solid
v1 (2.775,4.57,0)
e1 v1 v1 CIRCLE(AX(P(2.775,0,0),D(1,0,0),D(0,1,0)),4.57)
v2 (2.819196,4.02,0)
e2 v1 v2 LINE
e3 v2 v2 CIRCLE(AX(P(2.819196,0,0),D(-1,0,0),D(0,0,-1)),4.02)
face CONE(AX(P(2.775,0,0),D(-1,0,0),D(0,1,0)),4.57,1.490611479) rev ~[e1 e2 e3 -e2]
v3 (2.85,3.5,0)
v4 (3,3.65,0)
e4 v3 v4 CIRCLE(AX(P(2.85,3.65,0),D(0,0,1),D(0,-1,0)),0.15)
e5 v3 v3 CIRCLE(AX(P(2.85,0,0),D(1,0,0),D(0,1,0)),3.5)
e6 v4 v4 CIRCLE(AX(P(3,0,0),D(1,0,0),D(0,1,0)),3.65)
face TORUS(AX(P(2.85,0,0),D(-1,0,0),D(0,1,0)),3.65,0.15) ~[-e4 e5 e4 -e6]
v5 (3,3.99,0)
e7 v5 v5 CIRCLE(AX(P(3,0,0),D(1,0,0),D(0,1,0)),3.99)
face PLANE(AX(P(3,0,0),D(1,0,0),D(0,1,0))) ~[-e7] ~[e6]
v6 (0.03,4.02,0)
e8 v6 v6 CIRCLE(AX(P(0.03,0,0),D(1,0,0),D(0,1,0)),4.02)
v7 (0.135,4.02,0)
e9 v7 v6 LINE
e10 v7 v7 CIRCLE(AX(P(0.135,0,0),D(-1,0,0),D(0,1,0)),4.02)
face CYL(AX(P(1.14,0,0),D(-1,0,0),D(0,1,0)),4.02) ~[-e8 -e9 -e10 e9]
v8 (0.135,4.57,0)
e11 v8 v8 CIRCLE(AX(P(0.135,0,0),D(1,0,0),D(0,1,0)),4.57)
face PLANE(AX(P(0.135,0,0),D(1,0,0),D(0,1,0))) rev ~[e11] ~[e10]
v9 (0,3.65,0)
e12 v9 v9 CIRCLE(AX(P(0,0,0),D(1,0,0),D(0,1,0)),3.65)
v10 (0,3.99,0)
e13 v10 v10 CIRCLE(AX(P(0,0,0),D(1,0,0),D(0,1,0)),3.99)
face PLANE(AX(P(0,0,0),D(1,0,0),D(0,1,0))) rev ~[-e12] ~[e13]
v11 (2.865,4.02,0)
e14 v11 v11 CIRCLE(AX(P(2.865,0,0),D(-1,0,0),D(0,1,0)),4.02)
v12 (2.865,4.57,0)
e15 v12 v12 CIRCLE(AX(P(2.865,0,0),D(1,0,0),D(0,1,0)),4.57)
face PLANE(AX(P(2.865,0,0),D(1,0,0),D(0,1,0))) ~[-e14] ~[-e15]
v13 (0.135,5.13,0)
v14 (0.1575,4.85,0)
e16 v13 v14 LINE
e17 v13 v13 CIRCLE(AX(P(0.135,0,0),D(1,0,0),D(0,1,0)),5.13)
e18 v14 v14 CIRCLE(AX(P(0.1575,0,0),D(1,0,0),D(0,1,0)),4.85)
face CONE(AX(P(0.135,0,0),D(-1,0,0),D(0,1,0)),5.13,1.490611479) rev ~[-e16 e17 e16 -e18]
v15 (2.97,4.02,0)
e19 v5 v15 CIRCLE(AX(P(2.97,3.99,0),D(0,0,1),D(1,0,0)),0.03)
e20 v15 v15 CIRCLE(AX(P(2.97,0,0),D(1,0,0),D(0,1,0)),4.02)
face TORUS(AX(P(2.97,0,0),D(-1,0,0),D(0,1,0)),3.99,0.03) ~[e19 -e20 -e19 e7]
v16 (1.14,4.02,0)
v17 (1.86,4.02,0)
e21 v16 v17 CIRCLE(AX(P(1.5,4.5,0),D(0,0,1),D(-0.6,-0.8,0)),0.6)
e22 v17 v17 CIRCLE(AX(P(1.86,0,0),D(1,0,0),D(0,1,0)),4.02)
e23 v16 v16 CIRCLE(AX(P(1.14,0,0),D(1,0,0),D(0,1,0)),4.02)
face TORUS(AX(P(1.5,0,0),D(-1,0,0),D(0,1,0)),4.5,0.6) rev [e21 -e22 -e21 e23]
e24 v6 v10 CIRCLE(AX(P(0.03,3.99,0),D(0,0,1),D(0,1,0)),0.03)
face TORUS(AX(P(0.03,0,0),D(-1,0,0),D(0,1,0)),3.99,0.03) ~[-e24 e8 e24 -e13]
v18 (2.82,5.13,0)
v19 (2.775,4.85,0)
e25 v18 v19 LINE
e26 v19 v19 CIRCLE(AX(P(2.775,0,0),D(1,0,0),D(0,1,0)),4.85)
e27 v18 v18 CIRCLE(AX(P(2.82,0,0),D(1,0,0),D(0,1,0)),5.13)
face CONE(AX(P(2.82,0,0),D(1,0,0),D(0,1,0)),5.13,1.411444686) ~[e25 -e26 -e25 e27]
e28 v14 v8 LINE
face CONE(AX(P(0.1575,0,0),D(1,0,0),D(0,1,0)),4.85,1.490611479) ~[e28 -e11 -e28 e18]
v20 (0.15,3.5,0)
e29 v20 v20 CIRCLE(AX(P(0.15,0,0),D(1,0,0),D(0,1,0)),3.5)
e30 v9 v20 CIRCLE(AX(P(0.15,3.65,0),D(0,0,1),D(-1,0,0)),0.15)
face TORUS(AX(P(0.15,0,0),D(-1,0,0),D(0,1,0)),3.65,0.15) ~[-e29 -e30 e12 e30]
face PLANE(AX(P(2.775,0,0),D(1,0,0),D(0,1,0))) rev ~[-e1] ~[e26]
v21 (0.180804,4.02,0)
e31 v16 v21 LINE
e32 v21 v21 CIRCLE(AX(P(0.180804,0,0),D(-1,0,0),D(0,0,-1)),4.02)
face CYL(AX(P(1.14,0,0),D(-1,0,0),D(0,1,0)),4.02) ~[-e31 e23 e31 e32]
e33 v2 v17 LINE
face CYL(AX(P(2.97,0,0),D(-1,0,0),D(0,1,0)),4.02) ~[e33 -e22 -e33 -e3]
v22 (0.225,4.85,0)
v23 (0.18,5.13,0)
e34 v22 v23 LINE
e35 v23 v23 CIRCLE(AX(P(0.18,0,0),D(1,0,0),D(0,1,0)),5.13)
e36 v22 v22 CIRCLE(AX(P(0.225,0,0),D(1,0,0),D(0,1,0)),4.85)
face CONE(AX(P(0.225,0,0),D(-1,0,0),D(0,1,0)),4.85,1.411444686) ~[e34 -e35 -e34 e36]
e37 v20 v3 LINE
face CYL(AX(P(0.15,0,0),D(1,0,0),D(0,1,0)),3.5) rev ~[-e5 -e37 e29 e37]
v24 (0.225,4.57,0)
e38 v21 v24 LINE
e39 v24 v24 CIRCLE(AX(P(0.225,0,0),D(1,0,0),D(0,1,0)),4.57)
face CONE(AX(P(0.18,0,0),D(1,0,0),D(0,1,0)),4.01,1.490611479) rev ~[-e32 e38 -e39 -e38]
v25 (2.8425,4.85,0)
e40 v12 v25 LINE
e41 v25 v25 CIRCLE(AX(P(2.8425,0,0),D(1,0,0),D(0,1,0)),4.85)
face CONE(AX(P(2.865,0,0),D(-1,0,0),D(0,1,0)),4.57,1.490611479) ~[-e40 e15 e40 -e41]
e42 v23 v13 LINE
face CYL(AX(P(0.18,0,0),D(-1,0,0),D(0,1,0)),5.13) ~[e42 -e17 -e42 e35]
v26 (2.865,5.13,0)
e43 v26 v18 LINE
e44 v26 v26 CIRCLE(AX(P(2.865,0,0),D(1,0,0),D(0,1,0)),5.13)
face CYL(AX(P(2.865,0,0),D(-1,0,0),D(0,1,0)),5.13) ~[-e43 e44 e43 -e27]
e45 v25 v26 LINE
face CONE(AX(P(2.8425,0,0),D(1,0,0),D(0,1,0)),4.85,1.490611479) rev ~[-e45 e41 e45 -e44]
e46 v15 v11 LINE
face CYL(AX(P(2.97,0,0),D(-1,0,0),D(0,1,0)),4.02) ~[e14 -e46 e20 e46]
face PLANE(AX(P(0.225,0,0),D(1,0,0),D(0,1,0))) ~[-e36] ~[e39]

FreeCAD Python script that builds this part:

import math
import FreeCAD as App
import Part
import Sketcher

V = App.Vector
Q = App.Units.Quantity

doc = App.newDocument("Part")
params = doc.addObject("Spreadsheet::Sheet", "Params")
for row, (alias, value) in enumerate([
    ("sketch1_radius", "0.6 mm"),
    ("sketch1_radius2", "0.03 mm"),
    ("sketch1_radius3", "0.15 mm"),
    ("sketch1_width", "2.7 mm"),
    ("sketch1_width2", "1.11 mm"),
    ("revolution_angle", "360 deg"),
    ("sketch2_height", "0.56 mm"),
    ("sketch2_height2", "0.28 mm"),
    ("revolution2_angle", "360 deg"),
    ("sketch3_height", "0.28 mm"),
    ("sketch3_height2", "0.56 mm"),
    ("revolution3_angle", "360 deg"),
], start=1):
    params.set(f"A{row}", alias)
    params.set(f"B{row}", "=" + value)
    params.setAlias(f"B{row}", alias)

body = doc.addObject("PartDesign::Body", "Body")

sketch1 = body.newObject("Sketcher::SketchObject", "Sketch")
sketch1.AttachmentSupport = (doc.getObject("XY_Plane"), [""])
sketch1.MapMode = "FlatFace"
sketch1.addGeometry(Part.ArcOfCircle(Part.Circle(V(0.03, 3.99, 0), V(0, 0, 1), 0.03), math.radians(90), math.radians(180)), False)
sketch1.addGeometry(Part.LineSegment(V(0, 3.99, 0), V(0, 3.65, 0)), False)
sketch1.addGeometry(Part.ArcOfCircle(Part.Circle(V(0.15, 3.65, 0), V(0, 0, 1), 0.15), math.radians(180), math.radians(270)), False)
sketch1.addGeometry(Part.LineSegment(V(0.15, 3.5, 0), V(2.85, 3.5, 0)), False)
sketch1.addGeometry(Part.ArcOfCircle(Part.Circle(V(2.85, 3.65, 0), V(0, 0, 1), 0.15), math.radians(-90), math.radians(0)), False)
sketch1.addGeometry(Part.LineSegment(V(3, 3.65, 0), V(3, 3.99, 0)), False)
sketch1.addGeometry(Part.ArcOfCircle(Part.Circle(V(2.97, 3.99, 0), V(0, 0, 1), 0.03), math.radians(0), math.radians(90)), False)
sketch1.addGeometry(Part.LineSegment(V(2.97, 4.02, 0), V(1.86, 4.02, 0)), False)
sketch1.addGeometry(Part.ArcOfCircle(Part.Circle(V(1.5, 4.5, 0), V(0, 0, 1), 0.6), math.radians(-127), math.radians(-53)), False)
sketch1.addGeometry(Part.LineSegment(V(1.14, 4.02, 0), V(0.03, 4.02, 0)), False)
sketch1.addConstraint(Sketcher.Constraint("Tangent", 0, 2, 1, 1))
sketch1.addConstraint(Sketcher.Constraint("Tangent", 1, 2, 2, 1))
sketch1.addConstraint(Sketcher.Constraint("Tangent", 2, 2, 3, 1))
sketch1.addConstraint(Sketcher.Constraint("Tangent", 3, 2, 4, 1))
sketch1.addConstraint(Sketcher.Constraint("Tangent", 4, 2, 5, 1))
sketch1.addConstraint(Sketcher.Constraint("Tangent", 5, 2, 6, 1))
sketch1.addConstraint(Sketcher.Constraint("Tangent", 6, 2, 7, 1))
sketch1.addConstraint(Sketcher.Constraint("Coincident", 7, 2, 8, 2))
sketch1.addConstraint(Sketcher.Constraint("Coincident", 8, 1, 9, 1))
sketch1.addConstraint(Sketcher.Constraint("Tangent", 9, 2, 0, 1))
sketch1.addConstraint(Sketcher.Constraint("Vertical", 1))
sketch1.addConstraint(Sketcher.Constraint("Horizontal", 3))
sketch1.addConstraint(Sketcher.Constraint("Vertical", 5))
sketch1.addConstraint(Sketcher.Constraint("Horizontal", 7))
sketch1.addConstraint(Sketcher.Constraint("Horizontal", 9))
sketch1.addConstraint(Sketcher.Constraint("Equal", 2, 4))
sketch1.addConstraint(Sketcher.Constraint("Equal", 0, 6))
sketch1.addConstraint(Sketcher.Constraint("PointOnObject", 0, 2, -2))
sketch1.addConstraint(Sketcher.Constraint("Horizontal", 0, 3, 6, 3))
sketch1.addConstraint(Sketcher.Constraint("Equal", 7, 9))
sketch1.addConstraint(Sketcher.Constraint("Radius", 8, Q("0.6 mm")))
sketch1.addConstraint(Sketcher.Constraint("Radius", 0, Q("0.03 mm")))
sketch1.addConstraint(Sketcher.Constraint("Radius", 2, Q("0.15 mm")))
sketch1.addConstraint(Sketcher.Constraint("DistanceX", 3, 1, 3, 2, Q("2.7 mm")))
sketch1.addConstraint(Sketcher.Constraint("DistanceY", 2, 2, 8, 3, Q("1 mm")))
sketch1.addConstraint(Sketcher.Constraint("DistanceX", 7, 2, 7, 1, Q("1.11 mm")))
sketch1.addConstraint(Sketcher.Constraint("DistanceY", -1, 1, 8, 3, Q("4.5 mm")))
sketch1.setExpression("Constraints[20]", "Params.sketch1_radius")
sketch1.setExpression("Constraints[21]", "Params.sketch1_radius2")
sketch1.setExpression("Constraints[22]", "Params.sketch1_radius3")
sketch1.setExpression("Constraints[23]", "Params.sketch1_width")
sketch1.setExpression("Constraints[25]", "Params.sketch1_width2")
revolution = body.newObject("PartDesign::Revolution", "Revolution")
revolution.Profile = sketch1
revolution.ReferenceAxis = (sketch1, ["H_Axis"])
revolution.setExpression("Angle", "Params.revolution_angle")

sketch2 = body.newObject("Sketcher::SketchObject", "Sketch001")
sketch2.AttachmentSupport = (doc.getObject("XY_Plane"), [""])
sketch2.MapMode = "FlatFace"
sketch2.addGeometry(Part.LineSegment(V(0.18, 5.13, 0), V(0.135, 5.13, 0)), False)
sketch2.addGeometry(Part.LineSegment(V(0.135, 5.13, 0), V(0.158, 4.85, 0)), False)
sketch2.addGeometry(Part.LineSegment(V(0.158, 4.85, 0), V(0.135, 4.57, 0)), False)
sketch2.addGeometry(Part.LineSegment(V(0.135, 4.57, 0), V(0.135, 4.01, 0)), False)
sketch2.addGeometry(Part.LineSegment(V(0.135, 4.01, 0), V(0.18, 4.01, 0)), False)
sketch2.addGeometry(Part.LineSegment(V(0.18, 4.01, 0), V(0.225, 4.57, 0)), False)
sketch2.addGeometry(Part.LineSegment(V(0.225, 4.57, 0), V(0.225, 4.85, 0)), False)
sketch2.addGeometry(Part.LineSegment(V(0.225, 4.85, 0), V(0.18, 5.13, 0)), False)
sketch2.addConstraint(Sketcher.Constraint("Coincident", 0, 2, 1, 1))
sketch2.addConstraint(Sketcher.Constraint("Coincident", 1, 2, 2, 1))
sketch2.addConstraint(Sketcher.Constraint("Coincident", 2, 2, 3, 1))
sketch2.addConstraint(Sketcher.Constraint("Coincident", 3, 2, 4, 1))
sketch2.addConstraint(Sketcher.Constraint("Coincident", 4, 2, 5, 1))
sketch2.addConstraint(Sketcher.Constraint("Coincident", 5, 2, 6, 1))
sketch2.addConstraint(Sketcher.Constraint("Coincident", 6, 2, 7, 1))
sketch2.addConstraint(Sketcher.Constraint("Coincident", 7, 2, 0, 1))
sketch2.addConstraint(Sketcher.Constraint("Horizontal", 0))
sketch2.addConstraint(Sketcher.Constraint("Vertical", 3))
sketch2.addConstraint(Sketcher.Constraint("Horizontal", 4))
sketch2.addConstraint(Sketcher.Constraint("Vertical", 6))
sketch2.addConstraint(Sketcher.Constraint("Parallel", 2, 5))
sketch2.addConstraint(Sketcher.Constraint("Horizontal", 2, 2, 5, 2))
sketch2.addConstraint(Sketcher.Constraint("Horizontal", 1, 2, 6, 2))
sketch2.addConstraint(Sketcher.Constraint("Vertical", 0, 2, 2, 2))
sketch2.addConstraint(Sketcher.Constraint("Vertical", 4, 2, 7, 2))
sketch2.addConstraint(Sketcher.Constraint("Equal", 1, 2))
sketch2.addConstraint(Sketcher.Constraint("DistanceY", 3, 2, 3, 1, Q("0.56 mm")))
sketch2.addConstraint(Sketcher.Constraint("DistanceY", 6, 1, 6, 2, Q("0.28 mm")))
sketch2.addConstraint(Sketcher.Constraint("Angle", 7, Q("99.1302 deg")))
sketch2.addConstraint(Sketcher.Constraint("DistanceX", 0, 2, 0, 1, Q("0.045 mm")))
sketch2.addConstraint(Sketcher.Constraint("DistanceY", -1, 1, 0, 2, Q("5.13 mm")))
sketch2.addConstraint(Sketcher.Constraint("DistanceX", -1, 1, 4, 2, Q("0.18 mm")))
sketch2.setExpression("Constraints[18]", "Params.sketch2_height")
sketch2.setExpression("Constraints[19]", "Params.sketch2_height2")
revolution2 = body.newObject("PartDesign::Revolution", "Revolution001")
revolution2.Profile = sketch2
revolution2.ReferenceAxis = (sketch2, ["H_Axis"])
revolution2.setExpression("Angle", "Params.revolution2_angle")

sketch3 = body.newObject("Sketcher::SketchObject", "Sketch002")
sketch3.AttachmentSupport = (doc.getObject("XY_Plane"), [""])
sketch3.MapMode = "FlatFace"
sketch3.addGeometry(Part.LineSegment(V(2.82, 5.13, 0), V(2.775, 4.85, 0)), False)
sketch3.addGeometry(Part.LineSegment(V(2.775, 4.85, 0), V(2.775, 4.57, 0)), False)
sketch3.addGeometry(Part.LineSegment(V(2.775, 4.57, 0), V(2.82, 4.01, 0)), False)
sketch3.addGeometry(Part.LineSegment(V(2.82, 4.01, 0), V(2.865, 4.01, 0)), False)
sketch3.addGeometry(Part.LineSegment(V(2.865, 4.01, 0), V(2.865, 4.57, 0)), False)
sketch3.addGeometry(Part.LineSegment(V(2.865, 4.57, 0), V(2.842, 4.85, 0)), False)
sketch3.addGeometry(Part.LineSegment(V(2.842, 4.85, 0), V(2.865, 5.13, 0)), False)
sketch3.addGeometry(Part.LineSegment(V(2.865, 5.13, 0), V(2.82, 5.13, 0)), False)
sketch3.addConstraint(Sketcher.Constraint("Coincident", 0, 2, 1, 1))
sketch3.addConstraint(Sketcher.Constraint("Coincident", 1, 2, 2, 1))
sketch3.addConstraint(Sketcher.Constraint("Coincident", 2, 2, 3, 1))
sketch3.addConstraint(Sketcher.Constraint("Coincident", 3, 2, 4, 1))
sketch3.addConstraint(Sketcher.Constraint("Coincident", 4, 2, 5, 1))
sketch3.addConstraint(Sketcher.Constraint("Coincident", 5, 2, 6, 1))
sketch3.addConstraint(Sketcher.Constraint("Coincident", 6, 2, 7, 1))
sketch3.addConstraint(Sketcher.Constraint("Coincident", 7, 2, 0, 1))
sketch3.addConstraint(Sketcher.Constraint("Vertical", 1))
sketch3.addConstraint(Sketcher.Constraint("Horizontal", 3))
sketch3.addConstraint(Sketcher.Constraint("Vertical", 4))
sketch3.addConstraint(Sketcher.Constraint("Horizontal", 7))
sketch3.addConstraint(Sketcher.Constraint("Parallel", 2, 5))
sketch3.addConstraint(Sketcher.Constraint("Horizontal", 1, 2, 4, 2))
sketch3.addConstraint(Sketcher.Constraint("Horizontal", 0, 2, 5, 2))
sketch3.addConstraint(Sketcher.Constraint("Vertical", 4, 2, 6, 2))
sketch3.addConstraint(Sketcher.Constraint("Vertical", 2, 2, 7, 2))
sketch3.addConstraint(Sketcher.Constraint("Equal", 5, 6))
sketch3.addConstraint(Sketcher.Constraint("DistanceY", 1, 2, 1, 1, Q("0.28 mm")))
sketch3.addConstraint(Sketcher.Constraint("DistanceY", 4, 1, 4, 2, Q("0.56 mm")))
sketch3.addConstraint(Sketcher.Constraint("Angle", 0, Q("-99.1302 deg")))
sketch3.addConstraint(Sketcher.Constraint("DistanceX", 3, 1, 3, 2, Q("0.045 mm")))
sketch3.addConstraint(Sketcher.Constraint("DistanceY", -1, 1, 0, 2, Q("4.85 mm")))
sketch3.addConstraint(Sketcher.Constraint("DistanceX", -1, 1, 2, 2, Q("2.82 mm")))
sketch3.setExpression("Constraints[18]", "Params.sketch3_height")
sketch3.setExpression("Constraints[19]", "Params.sketch3_height2")
revolution3 = body.newObject("PartDesign::Revolution", "Revolution002")
revolution3.Profile = sketch3
revolution3.ReferenceAxis = (sketch3, ["H_Axis"])
revolution3.setExpression("Angle", "Params.revolution3_angle")

doc.recompute()
